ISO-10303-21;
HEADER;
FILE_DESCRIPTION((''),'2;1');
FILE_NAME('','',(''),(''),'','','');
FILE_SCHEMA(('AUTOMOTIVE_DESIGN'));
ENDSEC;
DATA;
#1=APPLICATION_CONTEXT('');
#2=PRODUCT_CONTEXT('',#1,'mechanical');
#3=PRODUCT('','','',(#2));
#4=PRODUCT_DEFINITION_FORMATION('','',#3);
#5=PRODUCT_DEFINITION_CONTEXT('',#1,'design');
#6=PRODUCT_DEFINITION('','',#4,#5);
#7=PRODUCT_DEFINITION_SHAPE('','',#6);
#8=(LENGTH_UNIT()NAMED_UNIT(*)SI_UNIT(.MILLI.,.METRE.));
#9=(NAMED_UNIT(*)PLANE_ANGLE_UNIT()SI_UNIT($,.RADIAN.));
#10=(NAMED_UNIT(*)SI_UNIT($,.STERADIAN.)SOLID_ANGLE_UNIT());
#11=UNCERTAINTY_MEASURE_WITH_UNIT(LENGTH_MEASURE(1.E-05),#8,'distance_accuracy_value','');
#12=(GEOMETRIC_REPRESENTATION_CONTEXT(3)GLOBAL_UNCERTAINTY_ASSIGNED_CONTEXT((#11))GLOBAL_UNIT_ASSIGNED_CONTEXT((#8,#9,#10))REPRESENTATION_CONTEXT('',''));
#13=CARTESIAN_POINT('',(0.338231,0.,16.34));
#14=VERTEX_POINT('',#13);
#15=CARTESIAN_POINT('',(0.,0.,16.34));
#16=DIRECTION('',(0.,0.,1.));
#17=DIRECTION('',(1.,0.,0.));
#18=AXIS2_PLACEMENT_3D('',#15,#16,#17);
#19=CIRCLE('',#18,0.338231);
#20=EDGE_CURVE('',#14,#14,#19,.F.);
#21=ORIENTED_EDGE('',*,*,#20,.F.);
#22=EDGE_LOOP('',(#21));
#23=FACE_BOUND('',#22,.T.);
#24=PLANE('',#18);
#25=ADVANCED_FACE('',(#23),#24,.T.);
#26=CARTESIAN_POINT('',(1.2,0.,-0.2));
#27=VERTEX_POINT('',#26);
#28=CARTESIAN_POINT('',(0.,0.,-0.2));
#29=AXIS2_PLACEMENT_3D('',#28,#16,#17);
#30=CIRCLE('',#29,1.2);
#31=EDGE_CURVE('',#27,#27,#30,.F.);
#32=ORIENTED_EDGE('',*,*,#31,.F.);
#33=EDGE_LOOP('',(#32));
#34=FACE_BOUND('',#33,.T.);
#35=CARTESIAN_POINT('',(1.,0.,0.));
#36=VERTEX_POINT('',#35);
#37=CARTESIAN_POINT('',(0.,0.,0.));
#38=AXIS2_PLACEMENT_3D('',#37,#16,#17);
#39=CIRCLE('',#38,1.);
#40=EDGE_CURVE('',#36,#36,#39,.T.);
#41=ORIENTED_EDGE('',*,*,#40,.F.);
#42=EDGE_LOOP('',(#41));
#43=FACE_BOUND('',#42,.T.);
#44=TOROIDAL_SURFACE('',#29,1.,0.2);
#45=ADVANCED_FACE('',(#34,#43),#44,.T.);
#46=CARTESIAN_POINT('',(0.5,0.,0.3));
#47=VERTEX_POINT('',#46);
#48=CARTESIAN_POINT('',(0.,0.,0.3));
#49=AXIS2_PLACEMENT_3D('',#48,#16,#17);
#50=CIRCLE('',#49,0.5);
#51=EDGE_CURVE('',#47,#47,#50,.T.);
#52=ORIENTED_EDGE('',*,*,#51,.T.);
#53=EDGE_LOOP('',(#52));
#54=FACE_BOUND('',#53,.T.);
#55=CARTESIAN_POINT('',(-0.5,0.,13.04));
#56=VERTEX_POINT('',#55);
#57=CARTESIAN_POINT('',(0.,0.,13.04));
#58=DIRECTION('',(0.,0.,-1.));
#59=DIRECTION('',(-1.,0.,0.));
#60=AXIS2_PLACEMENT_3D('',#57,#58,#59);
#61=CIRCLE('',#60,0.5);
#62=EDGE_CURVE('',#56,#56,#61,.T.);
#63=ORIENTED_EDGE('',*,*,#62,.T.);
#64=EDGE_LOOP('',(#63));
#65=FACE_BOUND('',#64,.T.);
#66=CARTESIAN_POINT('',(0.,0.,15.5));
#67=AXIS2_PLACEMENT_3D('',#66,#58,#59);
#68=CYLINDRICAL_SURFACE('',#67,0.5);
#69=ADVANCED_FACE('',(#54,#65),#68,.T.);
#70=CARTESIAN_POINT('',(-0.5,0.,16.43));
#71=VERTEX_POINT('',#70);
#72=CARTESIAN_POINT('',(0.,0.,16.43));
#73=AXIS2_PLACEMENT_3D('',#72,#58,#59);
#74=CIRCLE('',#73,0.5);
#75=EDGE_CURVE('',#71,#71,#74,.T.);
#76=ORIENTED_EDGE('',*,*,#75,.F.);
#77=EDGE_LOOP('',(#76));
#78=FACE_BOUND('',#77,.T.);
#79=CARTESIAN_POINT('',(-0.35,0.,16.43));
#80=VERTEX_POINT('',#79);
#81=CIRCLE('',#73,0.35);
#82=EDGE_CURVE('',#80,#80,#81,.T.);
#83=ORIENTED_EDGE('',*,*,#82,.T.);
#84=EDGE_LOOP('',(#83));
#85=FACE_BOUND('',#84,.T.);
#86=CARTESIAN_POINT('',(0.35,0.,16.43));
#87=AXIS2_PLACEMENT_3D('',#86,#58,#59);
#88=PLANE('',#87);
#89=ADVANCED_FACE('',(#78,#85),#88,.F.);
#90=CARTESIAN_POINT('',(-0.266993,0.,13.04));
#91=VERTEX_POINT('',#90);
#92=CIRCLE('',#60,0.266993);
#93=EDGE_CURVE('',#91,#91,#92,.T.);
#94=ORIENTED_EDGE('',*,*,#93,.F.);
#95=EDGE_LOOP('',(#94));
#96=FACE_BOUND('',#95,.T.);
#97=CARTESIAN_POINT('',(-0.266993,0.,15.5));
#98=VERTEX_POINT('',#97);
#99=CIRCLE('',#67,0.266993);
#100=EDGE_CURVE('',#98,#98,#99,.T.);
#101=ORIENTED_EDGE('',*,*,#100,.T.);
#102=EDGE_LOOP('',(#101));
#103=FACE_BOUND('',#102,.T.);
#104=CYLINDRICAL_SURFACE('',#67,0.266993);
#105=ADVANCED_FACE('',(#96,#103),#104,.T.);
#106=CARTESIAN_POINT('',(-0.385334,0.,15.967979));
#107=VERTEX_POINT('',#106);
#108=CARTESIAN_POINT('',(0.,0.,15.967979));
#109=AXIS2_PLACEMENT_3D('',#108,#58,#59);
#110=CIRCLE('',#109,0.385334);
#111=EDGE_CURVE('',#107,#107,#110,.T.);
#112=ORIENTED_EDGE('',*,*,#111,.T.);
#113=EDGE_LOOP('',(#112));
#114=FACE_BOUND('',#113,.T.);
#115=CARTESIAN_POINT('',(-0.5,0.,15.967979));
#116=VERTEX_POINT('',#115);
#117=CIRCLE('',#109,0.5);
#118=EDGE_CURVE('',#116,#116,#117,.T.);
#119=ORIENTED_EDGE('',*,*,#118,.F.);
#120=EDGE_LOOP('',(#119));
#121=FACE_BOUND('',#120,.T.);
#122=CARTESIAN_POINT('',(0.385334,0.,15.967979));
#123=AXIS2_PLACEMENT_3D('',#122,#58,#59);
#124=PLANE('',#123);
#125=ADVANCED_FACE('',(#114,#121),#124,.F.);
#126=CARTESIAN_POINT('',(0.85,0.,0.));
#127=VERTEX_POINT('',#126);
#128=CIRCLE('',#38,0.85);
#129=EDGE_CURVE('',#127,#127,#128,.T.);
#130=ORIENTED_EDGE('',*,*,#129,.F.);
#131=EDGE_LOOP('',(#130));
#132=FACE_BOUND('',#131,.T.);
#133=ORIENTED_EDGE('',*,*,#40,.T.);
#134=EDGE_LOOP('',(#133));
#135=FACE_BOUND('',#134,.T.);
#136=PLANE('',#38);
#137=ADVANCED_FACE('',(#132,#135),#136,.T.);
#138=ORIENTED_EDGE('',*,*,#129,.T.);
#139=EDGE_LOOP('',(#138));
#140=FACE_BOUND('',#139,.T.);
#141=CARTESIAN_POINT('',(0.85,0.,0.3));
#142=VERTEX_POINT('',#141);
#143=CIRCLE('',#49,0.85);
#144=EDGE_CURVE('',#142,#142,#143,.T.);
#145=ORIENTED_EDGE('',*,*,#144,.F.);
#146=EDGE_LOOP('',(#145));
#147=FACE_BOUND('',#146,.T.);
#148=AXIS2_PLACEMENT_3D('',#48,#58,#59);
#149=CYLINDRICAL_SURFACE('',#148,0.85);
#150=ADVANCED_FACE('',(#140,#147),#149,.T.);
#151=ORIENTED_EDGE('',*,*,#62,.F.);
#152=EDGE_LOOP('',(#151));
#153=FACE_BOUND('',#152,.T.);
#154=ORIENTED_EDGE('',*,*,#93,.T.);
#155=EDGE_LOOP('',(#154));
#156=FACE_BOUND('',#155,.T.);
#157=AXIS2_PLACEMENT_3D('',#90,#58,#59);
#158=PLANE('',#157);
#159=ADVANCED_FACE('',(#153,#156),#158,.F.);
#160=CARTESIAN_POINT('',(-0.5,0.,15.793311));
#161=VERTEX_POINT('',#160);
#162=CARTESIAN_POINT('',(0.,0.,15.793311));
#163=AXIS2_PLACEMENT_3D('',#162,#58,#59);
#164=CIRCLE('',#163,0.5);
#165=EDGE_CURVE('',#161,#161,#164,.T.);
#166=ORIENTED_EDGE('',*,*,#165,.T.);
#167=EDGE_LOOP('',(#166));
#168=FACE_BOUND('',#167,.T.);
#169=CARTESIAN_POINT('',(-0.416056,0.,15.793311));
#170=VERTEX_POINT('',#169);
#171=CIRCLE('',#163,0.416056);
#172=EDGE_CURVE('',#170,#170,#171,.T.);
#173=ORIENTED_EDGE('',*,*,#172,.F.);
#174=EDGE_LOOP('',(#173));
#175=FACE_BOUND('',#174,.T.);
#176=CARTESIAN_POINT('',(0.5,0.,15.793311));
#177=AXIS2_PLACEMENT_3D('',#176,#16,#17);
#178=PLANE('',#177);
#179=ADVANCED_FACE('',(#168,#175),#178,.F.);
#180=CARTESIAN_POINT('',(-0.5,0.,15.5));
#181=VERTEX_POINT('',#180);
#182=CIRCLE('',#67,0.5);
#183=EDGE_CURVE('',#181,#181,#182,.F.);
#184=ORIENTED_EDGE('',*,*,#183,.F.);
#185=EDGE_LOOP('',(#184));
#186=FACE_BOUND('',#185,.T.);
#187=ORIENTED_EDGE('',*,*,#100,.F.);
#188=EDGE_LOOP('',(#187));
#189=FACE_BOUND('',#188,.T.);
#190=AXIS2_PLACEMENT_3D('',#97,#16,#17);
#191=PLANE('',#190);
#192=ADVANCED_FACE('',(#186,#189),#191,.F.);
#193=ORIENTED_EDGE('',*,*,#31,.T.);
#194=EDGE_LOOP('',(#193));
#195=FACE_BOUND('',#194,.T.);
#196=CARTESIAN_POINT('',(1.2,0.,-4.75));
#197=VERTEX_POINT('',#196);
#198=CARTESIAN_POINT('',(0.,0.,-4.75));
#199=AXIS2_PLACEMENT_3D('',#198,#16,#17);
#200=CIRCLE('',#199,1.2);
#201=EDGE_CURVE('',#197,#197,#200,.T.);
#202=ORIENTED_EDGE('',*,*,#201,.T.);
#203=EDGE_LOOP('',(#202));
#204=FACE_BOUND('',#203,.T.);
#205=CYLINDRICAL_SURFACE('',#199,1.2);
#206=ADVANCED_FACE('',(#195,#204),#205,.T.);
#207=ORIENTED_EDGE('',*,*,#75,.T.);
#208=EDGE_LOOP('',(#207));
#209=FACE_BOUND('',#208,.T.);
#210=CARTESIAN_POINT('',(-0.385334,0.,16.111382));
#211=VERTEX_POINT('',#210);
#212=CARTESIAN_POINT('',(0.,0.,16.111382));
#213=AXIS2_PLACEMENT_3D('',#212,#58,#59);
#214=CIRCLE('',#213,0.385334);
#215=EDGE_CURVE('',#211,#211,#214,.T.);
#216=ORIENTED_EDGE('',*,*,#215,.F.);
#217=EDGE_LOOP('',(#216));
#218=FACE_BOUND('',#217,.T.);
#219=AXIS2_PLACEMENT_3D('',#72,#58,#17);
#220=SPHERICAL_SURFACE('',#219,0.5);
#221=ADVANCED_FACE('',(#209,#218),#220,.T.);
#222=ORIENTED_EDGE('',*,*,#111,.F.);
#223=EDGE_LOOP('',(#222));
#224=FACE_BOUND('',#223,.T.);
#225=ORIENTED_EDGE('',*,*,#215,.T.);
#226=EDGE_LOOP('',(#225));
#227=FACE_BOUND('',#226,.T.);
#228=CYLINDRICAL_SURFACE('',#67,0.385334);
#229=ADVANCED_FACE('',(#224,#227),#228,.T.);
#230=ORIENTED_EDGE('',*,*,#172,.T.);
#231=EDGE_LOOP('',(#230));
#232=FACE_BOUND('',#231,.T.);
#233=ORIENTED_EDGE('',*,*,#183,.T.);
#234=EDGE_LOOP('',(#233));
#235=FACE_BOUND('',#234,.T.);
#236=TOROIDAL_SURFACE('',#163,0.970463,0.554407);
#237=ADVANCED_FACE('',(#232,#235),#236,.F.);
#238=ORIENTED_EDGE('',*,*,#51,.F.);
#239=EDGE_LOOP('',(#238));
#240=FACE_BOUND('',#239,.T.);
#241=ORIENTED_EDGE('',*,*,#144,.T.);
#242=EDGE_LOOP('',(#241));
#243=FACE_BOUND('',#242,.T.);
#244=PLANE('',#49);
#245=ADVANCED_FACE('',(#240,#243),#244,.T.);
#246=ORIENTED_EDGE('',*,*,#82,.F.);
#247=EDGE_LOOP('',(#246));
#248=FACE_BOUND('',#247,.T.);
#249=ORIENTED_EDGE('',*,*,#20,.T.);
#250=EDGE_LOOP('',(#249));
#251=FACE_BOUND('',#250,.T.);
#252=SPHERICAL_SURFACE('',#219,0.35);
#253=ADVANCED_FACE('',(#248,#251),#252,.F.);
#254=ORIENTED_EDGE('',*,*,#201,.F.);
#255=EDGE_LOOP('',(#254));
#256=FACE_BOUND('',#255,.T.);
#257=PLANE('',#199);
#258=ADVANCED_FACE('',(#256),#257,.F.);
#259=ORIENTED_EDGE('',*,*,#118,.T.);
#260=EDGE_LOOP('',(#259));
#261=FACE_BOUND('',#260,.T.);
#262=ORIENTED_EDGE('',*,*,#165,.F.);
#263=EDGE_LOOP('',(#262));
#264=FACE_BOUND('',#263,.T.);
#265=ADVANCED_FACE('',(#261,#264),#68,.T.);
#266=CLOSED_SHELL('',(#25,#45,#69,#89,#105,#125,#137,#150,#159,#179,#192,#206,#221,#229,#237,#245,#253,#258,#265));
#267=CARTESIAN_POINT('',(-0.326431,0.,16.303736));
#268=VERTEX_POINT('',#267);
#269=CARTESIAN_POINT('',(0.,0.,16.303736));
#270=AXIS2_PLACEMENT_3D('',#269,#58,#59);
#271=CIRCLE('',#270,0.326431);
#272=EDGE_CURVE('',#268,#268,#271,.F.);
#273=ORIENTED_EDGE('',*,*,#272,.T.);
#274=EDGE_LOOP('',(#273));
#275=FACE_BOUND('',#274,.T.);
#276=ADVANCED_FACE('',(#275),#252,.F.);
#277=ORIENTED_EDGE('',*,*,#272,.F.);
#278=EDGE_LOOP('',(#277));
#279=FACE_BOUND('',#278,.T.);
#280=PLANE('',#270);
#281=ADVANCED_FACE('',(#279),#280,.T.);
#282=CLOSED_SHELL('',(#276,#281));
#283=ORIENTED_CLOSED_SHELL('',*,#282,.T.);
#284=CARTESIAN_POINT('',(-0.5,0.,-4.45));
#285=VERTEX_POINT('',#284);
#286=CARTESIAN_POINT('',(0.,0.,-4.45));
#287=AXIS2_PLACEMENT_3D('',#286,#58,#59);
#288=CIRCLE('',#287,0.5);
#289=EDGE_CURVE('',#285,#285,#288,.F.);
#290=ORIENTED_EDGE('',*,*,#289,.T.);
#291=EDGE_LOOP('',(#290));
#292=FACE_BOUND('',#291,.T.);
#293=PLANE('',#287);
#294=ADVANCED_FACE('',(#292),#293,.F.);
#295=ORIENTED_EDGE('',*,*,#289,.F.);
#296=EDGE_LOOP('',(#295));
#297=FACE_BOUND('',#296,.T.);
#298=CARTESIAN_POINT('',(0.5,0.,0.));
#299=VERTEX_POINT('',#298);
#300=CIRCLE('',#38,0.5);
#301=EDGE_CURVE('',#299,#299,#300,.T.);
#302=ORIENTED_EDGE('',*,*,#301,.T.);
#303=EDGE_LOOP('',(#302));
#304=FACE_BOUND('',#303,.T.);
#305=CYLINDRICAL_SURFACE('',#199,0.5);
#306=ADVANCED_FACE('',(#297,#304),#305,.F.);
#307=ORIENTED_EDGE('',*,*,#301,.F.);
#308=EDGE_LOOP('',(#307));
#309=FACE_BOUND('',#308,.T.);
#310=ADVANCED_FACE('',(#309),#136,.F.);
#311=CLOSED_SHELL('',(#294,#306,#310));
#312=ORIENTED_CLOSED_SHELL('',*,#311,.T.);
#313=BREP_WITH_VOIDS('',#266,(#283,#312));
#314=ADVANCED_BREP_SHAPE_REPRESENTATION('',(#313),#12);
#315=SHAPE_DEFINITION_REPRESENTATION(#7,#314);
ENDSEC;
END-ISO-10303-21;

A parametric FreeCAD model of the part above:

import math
import FreeCAD as App
import Part
import Sketcher


def edges_at(feature, points):
    """Names of the edges that pass closest to the given points."""
    edges = feature.Shape.Edges
    near = lambda p: min(range(len(edges)), key=lambda i: edges[i].distToShape(Part.Vertex(*p))[0])
    return sorted({f"Edge{near(p) + 1}" for p in points})

doc = App.newDocument("Part")
body = doc.addObject("PartDesign::Body", "Body")

sketch1 = body.newObject("Sketcher::SketchObject", "Sketch")
sketch1.AttachmentSupport = (doc.getObject("XY_Plane"), [""])
sketch1.MapMode = "FlatFace"
sketch1.addGeometry(Part.Circle(App.Vector(0, 0, 0), App.Vector(0, 0, 1), 0.5), False)
sketch1.addConstraint(Sketcher.Constraint("Coincident", 0, 3, -1, 1))
sketch1.addConstraint(Sketcher.Constraint("Diameter", 0, 1.0))
pad1 = body.newObject("PartDesign::Pad", "Pad")
pad1.Profile = sketch1
pad1.Length = 15.5
body2 = doc.addObject("PartDesign::Body", "Body001")

sketch2 = body2.newObject("Sketcher::SketchObject", "Sketch001")
sketch2.AttachmentSupport = (doc.getObject("XY_Plane001"), [""])
sketch2.MapMode = "FlatFace"
sketch2.addGeometry(Part.Circle(App.Vector(0, 0, 0), App.Vector(0, 0, 1), 1.2), False)
sketch2.addGeometry(Part.Circle(App.Vector(0, 0, 0), App.Vector(0, 0, 1), 0.5), False)
sketch2.addConstraint(Sketcher.Constraint("Coincident", 0, 3, -1, 1))
sketch2.addConstraint(Sketcher.Constraint("Coincident", 1, 3, -1, 1))
sketch2.addConstraint(Sketcher.Constraint("Diameter", 1, 1.0))
sketch2.addConstraint(Sketcher.Constraint("Diameter", 0, 2.4))
pad2 = body2.newObject("PartDesign::Pad", "Pad001")
pad2.Profile = sketch2
pad2.Length = 4.75
pad2.Reversed = True
doc.recompute()

fillet = body2.newObject("PartDesign::Fillet", "Fillet")
fillet.Base = (pad2, edges_at(pad2, [(-1.2, 0, 0)]))
fillet.Radius = 0.2
body.AllowCompound = True
doc.recompute()

boolean = body.newObject("PartDesign::Boolean", "Boolean")
boolean.Type = "Fuse"
boolean.addObjects([body2])

sketch3 = body.newObject("Sketcher::SketchObject", "Sketch002")
sketch3.AttachmentSupport = (doc.getObject("XY_Plane"), [""])
sketch3.MapMode = "FlatFace"
sketch3.addGeometry(Part.Circle(App.Vector(0, 0, 0), App.Vector(0, 0, 1), 0.8), False)
sketch3.addConstraint(Sketcher.Constraint("Coincident", 0, 3, -1, 1))
sketch3.addConstraint(Sketcher.Constraint("Diameter", 0, 1.7))
pad3 = body.newObject("PartDesign::Pad", "Pad002")
pad3.Profile = sketch3
pad3.Length = 0.3

sketch4 = body.newObject("Sketcher::SketchObject", "Sketch003")
sketch4.AttachmentSupport = (doc.getObject("XZ_Plane"), [""])
sketch4.MapMode = "FlatFace"
sketch4.addGeometry(Part.LineSegment(App.Vector(0.5, 15.5, 0), App.Vector(0, 15.5, 0)), False)
sketch4.addGeometry(Part.LineSegment(App.Vector(0, 15.5, 0), App.Vector(0, 16.08, 0)), False)
sketch4.addGeometry(Part.ArcOfCircle(Part.Circle(App.Vector(0, 16.43, 0), App.Vector(0, 0, 1), 0.35), math.radians(-90), math.radians(0)), False)
sketch4.addGeometry(Part.LineSegment(App.Vector(0.35, 16.43, 0), App.Vector(0.5, 16.43, 0)), False)
sketch4.addGeometry(Part.ArcOfCircle(Part.Circle(App.Vector(0, 16.43, 0), App.Vector(0, 0, 1), 0.5), math.radians(-40), math.radians(0)), False)
sketch4.addGeometry(Part.LineSegment(App.Vector(0.39, 16.11, 0), App.Vector(0.39, 15.97, 0)), False)
sketch4.addGeometry(Part.LineSegment(App.Vector(0.39, 15.97, 0), App.Vector(0.5, 15.97, 0)), False)
sketch4.addGeometry(Part.LineSegment(App.Vector(0.5, 15.97, 0), App.Vector(0.5, 15.79, 0)), False)
sketch4.addGeometry(Part.LineSegment(App.Vector(0.5, 15.79, 0), App.Vector(0.42, 15.79, 0)), False)
sketch4.addGeometry(Part.ArcOfCircle(Part.Circle(App.Vector(0.97, 15.79, 0), App.Vector(0, 0, 1), 0.55), math.radians(180), math.radians(212)), False)
sketch4.addConstraint(Sketcher.Constraint("Coincident", 0, 2, 1, 1))
sketch4.addConstraint(Sketcher.Constraint("Coincident", 1, 2, 2, 1))
sketch4.addConstraint(Sketcher.Constraint("Coincident", 2, 2, 3, 1))
sketch4.addConstraint(Sketcher.Constraint("Coincident", 3, 2, 4, 2))
sketch4.addConstraint(Sketcher.Constraint("Coincident", 4, 1, 5, 1))
sketch4.addConstraint(Sketcher.Constraint("Coincident", 5, 2, 6, 1))
sketch4.addConstraint(Sketcher.Constraint("Coincident", 6, 2, 7, 1))
sketch4.addConstraint(Sketcher.Constraint("Coincident", 7, 2, 8, 1))
sketch4.addConstraint(Sketcher.Constraint("Coincident", 8, 2, 9, 1))
sketch4.addConstraint(Sketcher.Constraint("Coincident", 9, 2, 0, 1))
sketch4.addConstraint(Sketcher.Constraint("Horizontal", 0))
sketch4.addConstraint(Sketcher.Constraint("Vertical", 1))
sketch4.addConstraint(Sketcher.Constraint("Horizontal", 3))
sketch4.addConstraint(Sketcher.Constraint("Vertical", 5))
sketch4.addConstraint(Sketcher.Constraint("Horizontal", 6))
sketch4.addConstraint(Sketcher.Constraint("Vertical", 7))
sketch4.addConstraint(Sketcher.Constraint("Horizontal", 8))
sketch4.addConstraint(Sketcher.Constraint("Coincident", 4, 3, 2, 3))
sketch4.addConstraint(Sketcher.Constraint("PointOnObject", 2, 3, -2))
sketch4.addConstraint(Sketcher.Constraint("PointOnObject", 0, 2, -2))
sketch4.addConstraint(Sketcher.Constraint("Horizontal", 4, 3, 2, 2))
sketch4.addConstraint(Sketcher.Constraint("Horizontal", 9, 3, 7, 2))
sketch4.addConstraint(Sketcher.Constraint("Vertical", 3, 2, 6, 2))
sketch4.addConstraint(Sketcher.Constraint("Vertical", 7, 2, 9, 2))
sketch4.addConstraint(Sketcher.Constraint("Radius", 4, 0.5))
sketch4.addConstraint(Sketcher.Constraint("Radius", 2, 0.35))
sketch4.addConstraint(Sketcher.Constraint("DistanceY", 1, 1, 1, 2, 0.58))
sketch4.addConstraint(Sketcher.Constraint("DistanceY", -1, 1, 0, 2, 15.5))
sketch4.addConstraint(Sketcher.Constraint("Radius", 9, 0.554407))
sketch4.addConstraint(Sketcher.Constraint("DistanceX", 6, 1, 6, 2, 0.114666))
sketch4.addConstraint(Sketcher.Constraint("DistanceX", 8, 2, 8, 1, 0.083944))
sketch4.addConstraint(Sketcher.Constraint("DistanceY", 5, 2, 5, 1, 0.143404))
revolution = body.newObject("PartDesign::Revolution", "Revolution")
revolution.Profile = sketch4
revolution.ReferenceAxis = (sketch4, ["V_Axis"])
revolution.Angle = 360

sketch5 = body.newObject("Sketcher::SketchObject", "Sketch004")
sketch5.AttachmentSupport = (doc.getObject("XZ_Plane"), [""])
sketch5.MapMode = "FlatFace"
sketch5.addGeometry(Part.LineSegment(App.Vector(-0.472, 16.304, 0), App.Vector(-0.472, 16.34, 0)), False)
sketch5.addGeometry(Part.LineSegment(App.Vector(-0.472, 16.34, 0), App.Vector(0, 16.34, 0)), False)
sketch5.addGeometry(Part.LineSegment(App.Vector(0, 16.34, 0), App.Vector(0, 16.304, 0)), False)
sketch5.addGeometry(Part.LineSegment(App.Vector(0, 16.304, 0), App.Vector(-0.472, 16.304, 0)), False)
sketch5.addConstraint(Sketcher.Constraint("Coincident", 0, 2, 1, 1))
sketch5.addConstraint(Sketcher.Constraint("Coincident", 1, 2, 2, 1))
sketch5.addConstraint(Sketcher.Constraint("Coincident", 2, 2, 3, 1))
sketch5.addConstraint(Sketcher.Constraint("Coincident", 3, 2, 0, 1))
sketch5.addConstraint(Sketcher.Constraint("Vertical", 0))
sketch5.addConstraint(Sketcher.Constraint("Horizontal", 1))
sketch5.addConstraint(Sketcher.Constraint("Vertical", 2))
sketch5.addConstraint(Sketcher.Constraint("Horizontal", 3))
sketch5.addConstraint(Sketcher.Constraint("PointOnObject", 1, 2, -2))
sketch5.addConstraint(Sketcher.Constraint("DistanceY", -1, 1, 0, 2, 16.34))
sketch5.addConstraint(Sketcher.Constraint("DistanceX", 1, 1, 1, 2, 0.47187))
sketch5.addConstraint(Sketcher.Constraint("DistanceY", 0, 1, 0, 2, 0.036264))
revolution2 = body.newObject("PartDesign::Revolution", "Revolution001")
revolution2.Profile = sketch5
revolution2.ReferenceAxis = (sketch5, ["V_Axis"])
revolution2.Angle = 360

sketch6 = body.newObject("Sketcher::SketchObject", "Sketch005")
sketch6.AttachmentSupport = (doc.getObject("XZ_Plane"), [""])
sketch6.MapMode = "FlatFace"
sketch6.addGeometry(Part.LineSegment(App.Vector(-1.2, 13, 0), App.Vector(-1.2, 15.5, 0)), False)
sketch6.addGeometry(Part.LineSegment(App.Vector(-1.2, 15.5, 0), App.Vector(-0.3, 15.5, 0)), False)
sketch6.addGeometry(Part.LineSegment(App.Vector(-0.3, 15.5, 0), App.Vector(-0.3, 13, 0)), False)
sketch6.addGeometry(Part.LineSegment(App.Vector(-0.3, 13, 0), App.Vector(-1.2, 13, 0)), False)
sketch6.addConstraint(Sketcher.Constraint("Coincident", 0, 2, 1, 1))
sketch6.addConstraint(Sketcher.Constraint("Coincident", 1, 2, 2, 1))
sketch6.addConstraint(Sketcher.Constraint("Coincident", 2, 2, 3, 1))
sketch6.addConstraint(Sketcher.Constraint("Coincident", 3, 2, 0, 1))
sketch6.addConstraint(Sketcher.Constraint("Vertical", 0))
sketch6.addConstraint(Sketcher.Constraint("Horizontal", 1))
sketch6.addConstraint(Sketcher.Constraint("Vertical", 2))
sketch6.addConstraint(Sketcher.Constraint("Horizontal", 3))
sketch6.addConstraint(Sketcher.Constraint("DistanceY", 0, 1, 0, 2, 2.46))
sketch6.addConstraint(Sketcher.Constraint("DistanceY", -1, 1, 0, 2, 15.5))
sketch6.addConstraint(Sketcher.Constraint("DistanceX", 1, 1, 1, 2, 0.976937))
sketch6.addConstraint(Sketcher.Constraint("DistanceX", 0, 2, -1, 1, 1.24393))
groove = body.newObject("PartDesign::Groove", "Groove")
groove.Profile = sketch6
groove.ReferenceAxis = (sketch6, ["V_Axis"])
groove.Angle = 360

sketch7 = body.newObject("Sketcher::SketchObject", "Sketch006")
sketch7.AttachmentSupport = (doc.getObject("XY_Plane"), [""])
sketch7.MapMode = "FlatFace"
sketch7.AttachmentOffset = App.Placement(App.Vector(0, 0, -4.75), App.Rotation())
sketch7.addGeometry(Part.Circle(App.Vector(0, 0, 0), App.Vector(0, 0, 1), 0.5), False)
sketch7.addConstraint(Sketcher.Constraint("Coincident", 0, 3, -1, 1))
sketch7.addConstraint(Sketcher.Constraint("Diameter", 0, 1.0))
pad4 = body.newObject("PartDesign::Pad", "Pad003")
pad4.Profile = sketch7
pad4.Length = 0.3

doc.recompute()
